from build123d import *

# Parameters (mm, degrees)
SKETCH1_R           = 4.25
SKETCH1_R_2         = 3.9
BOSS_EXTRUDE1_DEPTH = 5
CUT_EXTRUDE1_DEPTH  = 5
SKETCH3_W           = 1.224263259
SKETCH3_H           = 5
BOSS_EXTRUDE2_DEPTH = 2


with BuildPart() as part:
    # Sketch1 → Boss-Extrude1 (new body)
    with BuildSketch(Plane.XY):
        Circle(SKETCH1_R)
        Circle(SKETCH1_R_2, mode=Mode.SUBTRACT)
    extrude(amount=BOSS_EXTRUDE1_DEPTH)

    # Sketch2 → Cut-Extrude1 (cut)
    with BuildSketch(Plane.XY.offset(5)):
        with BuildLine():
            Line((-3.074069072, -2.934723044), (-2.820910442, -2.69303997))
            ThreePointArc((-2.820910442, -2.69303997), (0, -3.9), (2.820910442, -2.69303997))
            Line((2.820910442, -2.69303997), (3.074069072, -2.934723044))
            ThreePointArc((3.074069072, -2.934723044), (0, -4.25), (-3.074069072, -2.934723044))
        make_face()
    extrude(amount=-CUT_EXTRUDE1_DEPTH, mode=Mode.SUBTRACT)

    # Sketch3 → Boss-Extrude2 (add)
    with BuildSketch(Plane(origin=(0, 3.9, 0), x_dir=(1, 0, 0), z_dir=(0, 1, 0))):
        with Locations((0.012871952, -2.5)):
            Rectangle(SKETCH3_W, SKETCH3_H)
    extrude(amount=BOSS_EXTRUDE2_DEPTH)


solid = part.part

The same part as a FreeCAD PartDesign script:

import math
import FreeCAD as App
import Part
import Sketcher

V = App.Vector

doc = App.newDocument("Part")
body = doc.addObject("PartDesign::Body", "Body")

# Sketch on XY plane
sketch1 = doc.addObject("Sketcher::SketchObject", "Sketch")
body.addObject(sketch1)
sketch1.AttachmentSupport = (doc.XY_Plane, [""])
sketch1.MapMode = "FlatFace"
sketch1.addGeometry(Part.Circle(V(0, 0, 0), V(0, 0, 1), 4.2), False)
sketch1.addGeometry(Part.Circle(V(0, 0, 0), V(0, 0, 1), 3.9), False)
sketch1.addConstraint(Sketcher.Constraint("Coincident", 0, 3, -1, 1))
sketch1.addConstraint(Sketcher.Constraint("Coincident", 1, 3, -1, 1))
sketch1.addConstraint(Sketcher.Constraint("Diameter", 0, 8.5))
sketch1.addConstraint(Sketcher.Constraint("Diameter", 1, 7.8))
pad1 = doc.addObject("PartDesign::Pad", "Pad")
body.addObject(pad1)
pad1.Profile = sketch1
pad1.Length = 5

# Sketch on XY plane
sketch2 = doc.addObject("Sketcher::SketchObject", "Sketch001")
body.addObject(sketch2)
sketch2.AttachmentSupport = (doc.XY_Plane, [""])
sketch2.MapMode = "FlatFace"
sketch2.AttachmentOffset = App.Placement(V(0, 0, 5), App.Rotation())
sketch2.addGeometry(Part.LineSegment(V(-2.82, -2.69, 0), V(-3.07, -2.93, 0)), False)
sketch2.addGeometry(Part.ArcOfCircle(Part.Circle(V(0, 0, 0), V(0, 0, 1), 4.25), math.radians(-136), math.radians(-44)), False)
sketch2.addGeometry(Part.LineSegment(V(3.07, -2.93, 0), V(2.82, -2.69, 0)), False)
sketch2.addGeometry(Part.ArcOfCircle(Part.Circle(V(0, 0, 0), V(0, 0, 1), 3.9), math.radians(-136), math.radians(-44)), False)
sketch2.addConstraint(Sketcher.Constraint("Coincident", 0, 2, 1, 1))
sketch2.addConstraint(Sketcher.Constraint("Coincident", 1, 2, 2, 1))
sketch2.addConstraint(Sketcher.Constraint("Coincident", 2, 2, 3, 2))
sketch2.addConstraint(Sketcher.Constraint("Coincident", 3, 1, 0, 1))
sketch2.addConstraint(Sketcher.Constraint("Coincident", 1, 3, -1, 1))
sketch2.addConstraint(Sketcher.Constraint("Coincident", 3, 3, -1, 1))
sketch2.addConstraint(Sketcher.Constraint("Horizontal", 0, 2, 1, 2))
sketch2.addConstraint(Sketcher.Constraint("Horizontal", 2, 2, 3, 1))
sketch2.addConstraint(Sketcher.Constraint("Radius", 3, 3.9))
sketch2.addConstraint(Sketcher.Constraint("Radius", 1, 4.25))
sketch2.addConstraint(Sketcher.Constraint("DistanceX", 0, 2, -1, 1, 3.074069))
sketch2.addConstraint(Sketcher.Constraint("DistanceX", -1, 1, 2, 2, 2.82091))
pocket1 = doc.addObject("PartDesign::Pocket", "Pocket")
body.addObject(pocket1)
pocket1.Profile = sketch2
pocket1.Length = 5

# Sketch on XZ plane
sketch3 = doc.addObject("Sketcher::SketchObject", "Sketch002")
body.addObject(sketch3)
sketch3.AttachmentSupport = (doc.XZ_Plane, [""])
sketch3.MapMode = "FlatFace"
sketch3.AttachmentOffset = App.Placement(V(0, 0, -3.9), App.Rotation())
sketch3.addGeometry(Part.LineSegment(V(-0.6, 0, 0), V(-0.6, 5, 0)), False)
sketch3.addGeometry(Part.LineSegment(V(-0.6, 5, 0), V(0.6, 5, 0)), False)
sketch3.addGeometry(Part.LineSegment(V(0.6, 5, 0), V(0.6, 0, 0)), False)
sketch3.addGeometry(Part.LineSegment(V(0.6, 0, 0), V(-0.6, 0, 0)), False)
sketch3.addConstraint(Sketcher.Constraint("Coincident", 0, 2, 1, 1))
sketch3.addConstraint(Sketcher.Constraint("Coincident", 1, 2, 2, 1))
sketch3.addConstraint(Sketcher.Constraint("Coincident", 2, 2, 3, 1))
sketch3.addConstraint(Sketcher.Constraint("Coincident", 3, 2, 0, 1))
sketch3.addConstraint(Sketcher.Constraint("Vertical", 0))
sketch3.addConstraint(Sketcher.Constraint("Horizontal", 1))
sketch3.addConstraint(Sketcher.Constraint("Vertical", 2))
sketch3.addConstraint(Sketcher.Constraint("Horizontal", 3))
sketch3.addConstraint(Sketcher.Constraint("PointOnObject", 2, 2, -1))
sketch3.addConstraint(Sketcher.Constraint("DistanceY", 0, 1, 0, 2, 5.0))
sketch3.addConstraint(Sketcher.Constraint("DistanceX", 1, 1, 1, 2, 1.224263))
sketch3.addConstraint(Sketcher.Constraint("DistanceX", 0, 2, -1, 1, 0.59926))
pad2 = doc.addObject("PartDesign::Pad", "Pad001")
body.addObject(pad2)
pad2.Profile = sketch3
pad2.Length = 2
pad2.Reversed = True

doc.recompute()
